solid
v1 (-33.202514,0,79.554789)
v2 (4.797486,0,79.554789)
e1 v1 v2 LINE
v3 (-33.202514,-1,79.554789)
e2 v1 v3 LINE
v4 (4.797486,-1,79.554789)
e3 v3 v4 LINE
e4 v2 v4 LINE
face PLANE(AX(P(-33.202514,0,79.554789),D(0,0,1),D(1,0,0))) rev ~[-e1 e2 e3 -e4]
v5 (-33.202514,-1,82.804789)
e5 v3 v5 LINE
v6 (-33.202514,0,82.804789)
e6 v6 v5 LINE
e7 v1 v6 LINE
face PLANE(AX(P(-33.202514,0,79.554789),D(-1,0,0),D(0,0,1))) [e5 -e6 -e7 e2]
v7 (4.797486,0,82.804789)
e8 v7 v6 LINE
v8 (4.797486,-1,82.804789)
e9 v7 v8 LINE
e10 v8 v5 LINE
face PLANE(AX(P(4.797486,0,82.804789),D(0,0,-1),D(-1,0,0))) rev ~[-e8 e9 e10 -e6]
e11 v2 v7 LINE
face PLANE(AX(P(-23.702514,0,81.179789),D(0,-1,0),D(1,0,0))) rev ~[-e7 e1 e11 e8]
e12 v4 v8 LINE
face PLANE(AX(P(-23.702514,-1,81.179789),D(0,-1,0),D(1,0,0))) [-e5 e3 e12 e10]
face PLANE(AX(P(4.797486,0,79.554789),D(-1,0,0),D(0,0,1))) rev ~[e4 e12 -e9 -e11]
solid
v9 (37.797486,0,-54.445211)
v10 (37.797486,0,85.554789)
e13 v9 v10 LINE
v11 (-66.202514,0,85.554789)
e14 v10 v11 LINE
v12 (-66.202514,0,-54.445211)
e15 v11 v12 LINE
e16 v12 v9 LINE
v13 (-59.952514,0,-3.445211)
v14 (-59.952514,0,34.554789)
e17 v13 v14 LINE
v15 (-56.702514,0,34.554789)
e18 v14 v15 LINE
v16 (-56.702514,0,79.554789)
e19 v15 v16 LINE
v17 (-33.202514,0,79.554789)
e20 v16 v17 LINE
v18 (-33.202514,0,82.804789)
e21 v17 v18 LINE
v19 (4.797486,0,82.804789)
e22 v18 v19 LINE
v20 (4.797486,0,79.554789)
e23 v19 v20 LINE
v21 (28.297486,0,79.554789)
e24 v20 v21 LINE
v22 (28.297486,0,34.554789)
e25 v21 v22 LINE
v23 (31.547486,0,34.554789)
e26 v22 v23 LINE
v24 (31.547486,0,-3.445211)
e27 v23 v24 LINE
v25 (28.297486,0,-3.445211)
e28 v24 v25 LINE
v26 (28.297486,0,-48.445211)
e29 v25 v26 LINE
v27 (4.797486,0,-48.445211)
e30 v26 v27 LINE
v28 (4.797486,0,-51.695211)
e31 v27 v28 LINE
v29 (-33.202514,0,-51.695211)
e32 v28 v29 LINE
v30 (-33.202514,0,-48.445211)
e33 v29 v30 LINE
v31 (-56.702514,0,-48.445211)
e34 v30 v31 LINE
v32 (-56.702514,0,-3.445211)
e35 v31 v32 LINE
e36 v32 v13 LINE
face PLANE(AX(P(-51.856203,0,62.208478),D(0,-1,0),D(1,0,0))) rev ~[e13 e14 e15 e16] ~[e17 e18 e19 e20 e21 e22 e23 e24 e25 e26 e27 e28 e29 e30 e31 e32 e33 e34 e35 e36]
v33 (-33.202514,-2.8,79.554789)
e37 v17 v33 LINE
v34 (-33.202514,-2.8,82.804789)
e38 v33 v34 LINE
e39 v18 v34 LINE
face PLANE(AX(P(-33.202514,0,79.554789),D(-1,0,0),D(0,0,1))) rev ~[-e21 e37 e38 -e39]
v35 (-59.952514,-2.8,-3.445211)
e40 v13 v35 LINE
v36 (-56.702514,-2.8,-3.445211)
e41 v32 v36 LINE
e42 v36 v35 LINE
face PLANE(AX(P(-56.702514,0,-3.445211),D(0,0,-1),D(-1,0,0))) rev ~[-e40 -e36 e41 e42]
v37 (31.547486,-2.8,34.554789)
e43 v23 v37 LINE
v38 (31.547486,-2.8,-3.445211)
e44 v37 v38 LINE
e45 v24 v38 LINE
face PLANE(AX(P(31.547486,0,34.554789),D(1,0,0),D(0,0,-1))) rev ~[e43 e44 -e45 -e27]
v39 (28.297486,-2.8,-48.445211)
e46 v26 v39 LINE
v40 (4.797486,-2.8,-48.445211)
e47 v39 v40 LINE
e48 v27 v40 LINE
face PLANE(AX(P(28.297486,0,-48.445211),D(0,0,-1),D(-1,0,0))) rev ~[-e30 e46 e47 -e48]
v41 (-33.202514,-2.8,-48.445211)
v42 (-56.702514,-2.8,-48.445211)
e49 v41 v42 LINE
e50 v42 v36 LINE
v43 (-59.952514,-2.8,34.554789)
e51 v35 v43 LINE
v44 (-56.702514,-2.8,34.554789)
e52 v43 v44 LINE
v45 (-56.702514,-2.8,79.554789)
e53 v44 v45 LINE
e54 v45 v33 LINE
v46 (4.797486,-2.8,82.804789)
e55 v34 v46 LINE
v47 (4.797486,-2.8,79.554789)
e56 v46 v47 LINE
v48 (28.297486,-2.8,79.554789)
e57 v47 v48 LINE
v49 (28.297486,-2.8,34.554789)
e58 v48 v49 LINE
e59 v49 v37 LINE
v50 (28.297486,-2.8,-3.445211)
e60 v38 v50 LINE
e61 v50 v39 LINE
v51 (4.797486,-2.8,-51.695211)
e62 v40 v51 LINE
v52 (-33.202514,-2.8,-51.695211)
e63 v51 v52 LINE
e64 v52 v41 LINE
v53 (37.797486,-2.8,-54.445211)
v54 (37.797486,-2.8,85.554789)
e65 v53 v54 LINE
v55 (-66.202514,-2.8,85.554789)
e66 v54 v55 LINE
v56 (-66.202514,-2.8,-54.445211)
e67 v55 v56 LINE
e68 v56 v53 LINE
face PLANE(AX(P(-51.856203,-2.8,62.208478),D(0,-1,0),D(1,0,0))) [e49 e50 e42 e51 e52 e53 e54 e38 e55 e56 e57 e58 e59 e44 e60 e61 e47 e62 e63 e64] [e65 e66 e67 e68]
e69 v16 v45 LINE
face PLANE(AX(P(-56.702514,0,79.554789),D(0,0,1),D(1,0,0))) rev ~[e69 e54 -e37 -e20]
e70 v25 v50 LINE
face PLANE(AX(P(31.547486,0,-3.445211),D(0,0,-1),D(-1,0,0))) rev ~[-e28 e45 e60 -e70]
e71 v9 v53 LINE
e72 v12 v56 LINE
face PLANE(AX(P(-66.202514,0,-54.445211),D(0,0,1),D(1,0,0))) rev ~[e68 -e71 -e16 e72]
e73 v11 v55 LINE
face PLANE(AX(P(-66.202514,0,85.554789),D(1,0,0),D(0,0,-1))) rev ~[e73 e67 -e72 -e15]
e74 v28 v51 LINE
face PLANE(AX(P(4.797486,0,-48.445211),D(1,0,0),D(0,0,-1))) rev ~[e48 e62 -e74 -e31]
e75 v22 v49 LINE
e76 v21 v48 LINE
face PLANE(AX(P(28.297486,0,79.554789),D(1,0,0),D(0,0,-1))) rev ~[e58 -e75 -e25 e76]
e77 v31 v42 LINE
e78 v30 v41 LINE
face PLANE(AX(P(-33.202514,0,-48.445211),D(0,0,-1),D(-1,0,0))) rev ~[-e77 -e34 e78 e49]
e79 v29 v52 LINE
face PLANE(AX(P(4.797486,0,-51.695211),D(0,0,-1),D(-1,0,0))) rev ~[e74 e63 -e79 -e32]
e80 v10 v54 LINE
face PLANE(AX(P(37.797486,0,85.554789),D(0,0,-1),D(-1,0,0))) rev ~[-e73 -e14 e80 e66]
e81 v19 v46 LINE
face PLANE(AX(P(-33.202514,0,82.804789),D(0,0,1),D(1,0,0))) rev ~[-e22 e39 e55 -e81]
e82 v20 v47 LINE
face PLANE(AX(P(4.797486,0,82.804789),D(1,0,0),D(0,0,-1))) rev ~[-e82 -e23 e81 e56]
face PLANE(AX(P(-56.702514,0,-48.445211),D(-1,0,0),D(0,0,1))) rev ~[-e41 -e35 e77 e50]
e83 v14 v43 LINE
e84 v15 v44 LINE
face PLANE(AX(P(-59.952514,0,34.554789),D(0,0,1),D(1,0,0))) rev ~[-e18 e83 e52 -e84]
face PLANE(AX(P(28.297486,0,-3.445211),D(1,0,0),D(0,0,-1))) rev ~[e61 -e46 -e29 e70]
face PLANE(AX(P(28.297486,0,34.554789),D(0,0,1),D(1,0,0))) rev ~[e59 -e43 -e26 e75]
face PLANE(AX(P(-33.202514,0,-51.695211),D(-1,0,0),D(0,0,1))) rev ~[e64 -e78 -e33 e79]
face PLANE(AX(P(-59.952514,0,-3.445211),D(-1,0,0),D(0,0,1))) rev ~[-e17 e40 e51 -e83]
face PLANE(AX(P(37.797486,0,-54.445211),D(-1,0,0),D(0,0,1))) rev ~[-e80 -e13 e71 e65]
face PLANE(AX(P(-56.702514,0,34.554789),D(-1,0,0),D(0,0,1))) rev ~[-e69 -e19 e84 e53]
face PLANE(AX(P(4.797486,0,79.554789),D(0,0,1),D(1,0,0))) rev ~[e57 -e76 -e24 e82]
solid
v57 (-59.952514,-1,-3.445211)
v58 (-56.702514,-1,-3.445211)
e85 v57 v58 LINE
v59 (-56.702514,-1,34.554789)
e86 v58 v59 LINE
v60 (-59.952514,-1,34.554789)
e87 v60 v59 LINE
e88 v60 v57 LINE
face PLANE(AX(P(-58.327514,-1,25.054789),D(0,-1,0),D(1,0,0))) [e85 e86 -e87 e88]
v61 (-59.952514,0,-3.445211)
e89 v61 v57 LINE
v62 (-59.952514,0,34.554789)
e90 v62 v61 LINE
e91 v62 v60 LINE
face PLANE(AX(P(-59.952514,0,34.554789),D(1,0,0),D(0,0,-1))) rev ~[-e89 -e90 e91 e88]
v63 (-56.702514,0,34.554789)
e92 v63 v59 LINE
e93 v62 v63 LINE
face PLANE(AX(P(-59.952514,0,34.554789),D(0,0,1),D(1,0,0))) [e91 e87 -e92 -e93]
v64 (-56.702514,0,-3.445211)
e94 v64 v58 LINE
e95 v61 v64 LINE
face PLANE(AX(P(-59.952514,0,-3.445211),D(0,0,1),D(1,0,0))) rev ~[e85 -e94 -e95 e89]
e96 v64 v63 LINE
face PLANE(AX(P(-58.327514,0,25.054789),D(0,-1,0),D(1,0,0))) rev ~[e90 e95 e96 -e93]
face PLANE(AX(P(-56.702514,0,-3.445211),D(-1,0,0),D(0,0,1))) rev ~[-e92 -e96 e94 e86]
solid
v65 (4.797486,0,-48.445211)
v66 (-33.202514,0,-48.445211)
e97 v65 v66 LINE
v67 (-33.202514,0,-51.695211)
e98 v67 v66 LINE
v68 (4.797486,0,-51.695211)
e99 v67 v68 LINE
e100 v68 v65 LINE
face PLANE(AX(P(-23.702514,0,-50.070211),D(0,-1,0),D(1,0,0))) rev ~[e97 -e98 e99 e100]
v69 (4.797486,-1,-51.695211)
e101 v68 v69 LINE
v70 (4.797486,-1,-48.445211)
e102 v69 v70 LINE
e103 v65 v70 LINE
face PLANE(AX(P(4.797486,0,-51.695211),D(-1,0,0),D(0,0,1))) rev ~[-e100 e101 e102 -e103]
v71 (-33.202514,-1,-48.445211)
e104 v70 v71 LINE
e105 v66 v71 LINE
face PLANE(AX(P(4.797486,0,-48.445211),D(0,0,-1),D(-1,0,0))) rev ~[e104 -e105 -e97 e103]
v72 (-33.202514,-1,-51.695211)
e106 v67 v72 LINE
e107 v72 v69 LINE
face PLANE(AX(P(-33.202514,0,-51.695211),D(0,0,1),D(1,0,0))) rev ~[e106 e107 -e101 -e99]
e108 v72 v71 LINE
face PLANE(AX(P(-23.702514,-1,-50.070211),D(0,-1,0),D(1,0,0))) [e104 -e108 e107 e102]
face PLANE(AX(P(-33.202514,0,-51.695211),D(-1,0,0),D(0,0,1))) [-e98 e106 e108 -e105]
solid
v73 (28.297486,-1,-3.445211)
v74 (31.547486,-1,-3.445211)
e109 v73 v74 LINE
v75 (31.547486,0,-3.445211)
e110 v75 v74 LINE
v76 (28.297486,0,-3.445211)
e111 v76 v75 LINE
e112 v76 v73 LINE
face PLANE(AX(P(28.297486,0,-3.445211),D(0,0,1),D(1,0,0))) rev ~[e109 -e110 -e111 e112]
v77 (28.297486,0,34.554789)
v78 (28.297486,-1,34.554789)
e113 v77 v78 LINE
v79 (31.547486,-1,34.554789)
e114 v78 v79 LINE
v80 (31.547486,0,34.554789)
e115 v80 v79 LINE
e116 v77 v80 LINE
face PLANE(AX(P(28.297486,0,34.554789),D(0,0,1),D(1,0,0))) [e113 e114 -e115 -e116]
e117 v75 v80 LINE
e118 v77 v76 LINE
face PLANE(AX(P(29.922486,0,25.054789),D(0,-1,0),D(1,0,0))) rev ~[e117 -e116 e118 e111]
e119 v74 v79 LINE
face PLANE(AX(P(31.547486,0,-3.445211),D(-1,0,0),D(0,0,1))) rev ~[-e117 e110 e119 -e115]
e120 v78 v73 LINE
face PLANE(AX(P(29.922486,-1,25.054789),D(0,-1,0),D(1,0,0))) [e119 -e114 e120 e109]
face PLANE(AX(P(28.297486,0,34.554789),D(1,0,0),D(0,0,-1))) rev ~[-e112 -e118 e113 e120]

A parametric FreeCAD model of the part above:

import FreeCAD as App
import Part
import Sketcher
Q = App.Units.Quantity


def add_polygon(sketch, points):
    """Adds a closed chain of lines whose ends are joined by coincident constraints."""
    first, n = sketch.GeometryCount, len(points)
    for a, b in zip(points, points[1:] + points[:1]):
        sketch.addGeometry(Part.LineSegment(App.Vector(*a, 0), App.Vector(*b, 0)), False)
    for i in range(n):
        sketch.addConstraint(Sketcher.Constraint("Coincident", first + i, 2, first + (i + 1) % n, 1))

doc = App.newDocument("Part")
body = doc.addObject("PartDesign::Body", "Body")

sketch1 = body.newObject("Sketcher::SketchObject", "Sketch")
sketch1.AttachmentSupport = (doc.getObject("XZ_Plane"), [""])
sketch1.MapMode = "FlatFace"
add_polygon(sketch1, [(-66.202514, 85.554789), (-66.202514, -54.445211), (37.797486, -54.445211), (37.797486, 85.554789)])
add_polygon(sketch1, [(-59.952514, 34.554789), (-56.702514, 34.554789), (-56.702514, 79.554789), (-33.202514, 79.554789), (-33.202514, 82.804789), (4.797486, 82.804789), (4.797486, 79.554789), (28.297486, 79.554789), (28.297486, 34.554789), (31.547486, 34.554789), (31.547486, -3.445211), (28.297486, -3.445211), (28.297486, -48.445211), (4.797486, -48.445211), (4.797486, -51.695211), (-33.202514, -51.695211), (-33.202514, -48.445211), (-56.702514, -48.445211), (-56.702514, -3.445211), (-59.952514, -3.445211)])
sketch1.addConstraint([
    Sketcher.Constraint("Vertical", 0),
    Sketcher.Constraint("Horizontal", 1),
    Sketcher.Constraint("Vertical", 2),
    Sketcher.Constraint("Horizontal", 3),
    Sketcher.Constraint("Horizontal", 4),
    Sketcher.Constraint("Vertical", 5),
    Sketcher.Constraint("Horizontal", 6),
    Sketcher.Constraint("Vertical", 7),
    Sketcher.Constraint("Horizontal", 8),
    Sketcher.Constraint("Vertical", 9),
    Sketcher.Constraint("Horizontal", 10),
    Sketcher.Constraint("Vertical", 11),
    Sketcher.Constraint("Horizontal", 12),
    Sketcher.Constraint("Vertical", 13),
    Sketcher.Constraint("Horizontal", 14),
    Sketcher.Constraint("Vertical", 15),
    Sketcher.Constraint("Horizontal", 16),
    Sketcher.Constraint("Vertical", 17),
    Sketcher.Constraint("Horizontal", 18),
    Sketcher.Constraint("Vertical", 19),
    Sketcher.Constraint("Horizontal", 20),
    Sketcher.Constraint("Vertical", 21),
    Sketcher.Constraint("Horizontal", 22),
    Sketcher.Constraint("Vertical", 23),
    Sketcher.Constraint("Horizontal", 6, 2, 9, 2),
    Sketcher.Constraint("Horizontal", 4, 2, 11, 2),
    Sketcher.Constraint("Horizontal", 16, 2, 19, 2),
    Sketcher.Constraint("Horizontal", 14, 2, 21, 2),
    Sketcher.Constraint("Vertical", 11, 2, 14, 2),
    Sketcher.Constraint("Vertical", 9, 2, 16, 2),
    Sketcher.Constraint("Vertical", 7, 2, 18, 2),
    Sketcher.Constraint("Vertical", 5, 2, 20, 2),
    Sketcher.Constraint("Equal", 6, 10),
    Sketcher.Constraint("Equal", 4, 12),
    Sketcher.Constraint("Equal", 22, 7),
    Sketcher.Constraint("Equal", 18, 13),
    Sketcher.Constraint("Equal", 11, 15),
    Sketcher.Constraint("Equal", 9, 17),
    Sketcher.Constraint("DistanceX", 1, 1, 1, 2, Q("104 mm")),
    Sketcher.Constraint("DistanceX", 8, 1, 8, 2, Q("38 mm")),
    Sketcher.Constraint("DistanceY", 0, 2, 0, 1, Q("140 mm")),
    Sketcher.Constraint("DistanceY", 5, 1, 5, 2, Q("45 mm")),
    Sketcher.Constraint("DistanceX", 6, 1, 6, 2, Q("23.5 mm")),
    Sketcher.Constraint("DistanceY", 4, 2, 3, 2, Q("51 mm")),
    Sketcher.Constraint("DistanceX", 3, 2, 6, 2, Q("33 mm")),
    Sketcher.Constraint("DistanceX", 4, 1, 4, 2, Q("3.25 mm")),
    Sketcher.Constraint("DistanceY", 0, 2, -1, 1, Q("54.445211 mm")),
    Sketcher.Constraint("DistanceX", 0, 2, -1, 1, Q("66.202514 mm")),
])
pad1 = body.newObject("PartDesign::Pad", "Pad")
pad1.Profile = sketch1
pad1.Length = 2.8
body2 = doc.addObject("PartDesign::Body", "Body001")
body2.AllowCompound = True

sketch2 = body2.newObject("Sketcher::SketchObject", "Sketch001")
sketch2.AttachmentSupport = (doc.getObject("XZ_Plane001"), [""])
sketch2.MapMode = "FlatFace"
add_polygon(sketch2, [(-59.952514, 34.554789), (-59.952514, -3.445211), (-56.702514, -3.445211), (-56.702514, 34.554789)])
add_polygon(sketch2, [(-33.202514, 82.804789), (-33.202514, 79.554789), (4.797486, 79.554789), (4.797486, 82.804789)])
add_polygon(sketch2, [(28.297486, 34.554789), (28.297486, -3.445211), (31.547486, -3.445211), (31.547486, 34.554789)])
add_polygon(sketch2, [(-33.202514, -48.445211), (-33.202514, -51.695211), (4.797486, -51.695211), (4.797486, -48.445211)])
sketch2.addConstraint([
    Sketcher.Constraint("Vertical", 0),
    Sketcher.Constraint("Horizontal", 1),
    Sketcher.Constraint("Vertical", 2),
    Sketcher.Constraint("Horizontal", 3),
    Sketcher.Constraint("Vertical", 4),
    Sketcher.Constraint("Horizontal", 5),
    Sketcher.Constraint("Vertical", 6),
    Sketcher.Constraint("Horizontal", 7),
    Sketcher.Constraint("Vertical", 8),
    Sketcher.Constraint("Horizontal", 9),
    Sketcher.Constraint("Vertical", 10),
    Sketcher.Constraint("Horizontal", 11),
    Sketcher.Constraint("Vertical", 12),
    Sketcher.Constraint("Horizontal", 13),
    Sketcher.Constraint("Vertical", 14),
    Sketcher.Constraint("Horizontal", 15),
    Sketcher.Constraint("Horizontal", 1, 2, 8, 2),
    Sketcher.Constraint("Horizontal", 3, 2, 10, 2),
    Sketcher.Constraint("Vertical", 7, 2, 12, 2),
    Sketcher.Constraint("Vertical", 6, 2, 13, 2),
    Sketcher.Constraint("Equal", 3, 9),
    Sketcher.Constraint("Equal", 15, 0),
    Sketcher.Constraint("Equal", 11, 4),
    Sketcher.Constraint("Equal", 6, 12),
    Sketcher.Constraint("DistanceX", 5, 1, 5, 2, Q("38 mm")),
    Sketcher.Constraint("DistanceY", 2, 2, 4, 2, Q("45 mm")),
    Sketcher.Constraint("DistanceX", 1, 2, 8, 2, Q("85 mm")),
    Sketcher.Constraint("DistanceY", 14, 2, 8, 2, Q("45 mm")),
    Sketcher.Constraint("DistanceX", 1, 1, 1, 2, Q("3.25 mm")),
    Sketcher.Constraint("DistanceX", 2, 2, 4, 2, Q("23.5 mm")),
    Sketcher.Constraint("DistanceY", 0, 2, -1, 1, Q("3.445211 mm")),
    Sketcher.Constraint("DistanceX", 0, 2, -1, 1, Q("59.952514 mm")),
])
pad2 = body2.newObject("PartDesign::Pad", "Pad001")
pad2.Profile = sketch2
pad2.Length = 1

doc.recompute()
